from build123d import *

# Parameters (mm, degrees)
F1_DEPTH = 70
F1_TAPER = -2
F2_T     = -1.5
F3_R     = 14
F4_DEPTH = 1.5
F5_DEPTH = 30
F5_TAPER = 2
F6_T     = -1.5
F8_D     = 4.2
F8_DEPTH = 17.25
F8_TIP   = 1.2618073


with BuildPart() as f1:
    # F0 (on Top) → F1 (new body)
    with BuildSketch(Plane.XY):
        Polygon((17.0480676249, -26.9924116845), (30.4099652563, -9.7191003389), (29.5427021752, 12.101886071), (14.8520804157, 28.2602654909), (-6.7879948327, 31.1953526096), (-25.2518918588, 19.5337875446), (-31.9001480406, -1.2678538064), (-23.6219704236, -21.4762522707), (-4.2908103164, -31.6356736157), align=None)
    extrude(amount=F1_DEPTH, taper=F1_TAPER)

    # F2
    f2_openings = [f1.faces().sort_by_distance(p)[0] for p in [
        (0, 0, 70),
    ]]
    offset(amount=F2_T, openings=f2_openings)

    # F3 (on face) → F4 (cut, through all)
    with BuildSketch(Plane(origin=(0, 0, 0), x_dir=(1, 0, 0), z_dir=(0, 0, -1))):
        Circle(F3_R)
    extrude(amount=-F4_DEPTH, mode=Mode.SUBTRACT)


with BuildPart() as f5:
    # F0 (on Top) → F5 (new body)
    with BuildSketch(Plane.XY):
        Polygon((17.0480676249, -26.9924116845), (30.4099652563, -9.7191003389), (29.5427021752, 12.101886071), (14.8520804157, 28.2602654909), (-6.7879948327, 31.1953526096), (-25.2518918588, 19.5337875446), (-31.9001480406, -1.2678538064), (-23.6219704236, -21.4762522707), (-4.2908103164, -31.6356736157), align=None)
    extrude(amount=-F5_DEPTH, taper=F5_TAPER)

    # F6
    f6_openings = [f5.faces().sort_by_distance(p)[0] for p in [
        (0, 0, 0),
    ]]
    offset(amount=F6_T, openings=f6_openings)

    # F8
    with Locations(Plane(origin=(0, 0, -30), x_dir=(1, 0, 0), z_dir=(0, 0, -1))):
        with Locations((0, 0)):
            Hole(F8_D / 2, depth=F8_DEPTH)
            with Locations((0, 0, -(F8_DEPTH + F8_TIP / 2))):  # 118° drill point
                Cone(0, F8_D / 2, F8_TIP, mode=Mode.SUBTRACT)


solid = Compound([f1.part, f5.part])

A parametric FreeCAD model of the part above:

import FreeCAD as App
import Part
import Sketcher
from FreeCAD import Vector


def faces_at(feature, points):
    """Names of the faces that lie closest to the given points."""
    faces = feature.Shape.Faces
    near = lambda p: min(range(len(faces)), key=lambda i: faces[i].distToShape(Part.Vertex(*p))[0])
    return sorted({f"Face{near(p) + 1}" for p in points})

doc = App.newDocument("Part")
params = doc.addObject("Spreadsheet::Sheet", "Params")
for row, (alias, value) in enumerate([
    ("pad1_length", "70 mm"),
    ("pad1_taper", "2 deg"),
    ("thickness_wall", "1.5 mm"),
    ("sketch2_diameter", "28 mm"),
    ("pad2_length", "30 mm"),
    ("pad2_taper", "-2 deg"),
    ("thickness2_wall", "1.5 mm"),
    ("sketch4_diameter", "4.2 mm"),
    ("hole_diameter", "4.2 mm"),
    ("hole_depth", "17.25 mm"),
], start=1):
    params.set(f"A{row}", alias)
    params.set(f"B{row}", "=" + value)
    params.setAlias(f"B{row}", alias)

body = doc.addObject("PartDesign::Body", "Body")

# Sketch on XY plane
sketch1 = body.newObject("Sketcher::SketchObject", "Sketch")
sketch1.AttachmentSupport = (doc.getObject("XY_Plane"), [""])
sketch1.MapMode = "FlatFace"
sketch1.addGeometry([
    Part.LineSegment(Vector(17.048068, -26.992412, 0), Vector(30.409965, -9.7191, 0)),  # 0
    Part.LineSegment(Vector(30.409965, -9.7191, 0), Vector(29.542702, 12.101886, 0)),  # 1
    Part.LineSegment(Vector(29.542702, 12.101886, 0), Vector(14.85208, 28.260265, 0)),  # 2
    Part.LineSegment(Vector(14.85208, 28.260265, 0), Vector(-6.787995, 31.195353, 0)),  # 3
    Part.LineSegment(Vector(-6.787995, 31.195353, 0), Vector(-25.251892, 19.533788, 0)),  # 4
    Part.LineSegment(Vector(-25.251892, 19.533788, 0), Vector(-31.900148, -1.267854, 0)),  # 5
    Part.LineSegment(Vector(-31.900148, -1.267854, 0), Vector(-23.62197, -21.476252, 0)),  # 6
    Part.LineSegment(Vector(-23.62197, -21.476252, 0), Vector(-4.29081, -31.635674, 0)),  # 7
    Part.LineSegment(Vector(-4.29081, -31.635674, 0), Vector(17.048068, -26.992412, 0)),  # 8
], False)
sketch1.addConstraint([
    Sketcher.Constraint("Coincident", 0, 2, 1, 1),
    Sketcher.Constraint("Coincident", 1, 2, 2, 1),
    Sketcher.Constraint("Coincident", 2, 2, 3, 1),
    Sketcher.Constraint("Coincident", 3, 2, 4, 1),
    Sketcher.Constraint("Coincident", 4, 2, 5, 1),
    Sketcher.Constraint("Coincident", 5, 2, 6, 1),
    Sketcher.Constraint("Coincident", 6, 2, 7, 1),
    Sketcher.Constraint("Coincident", 7, 2, 8, 1),
    Sketcher.Constraint("Coincident", 8, 2, 0, 1),
    Sketcher.Constraint("Equal", 0, 1),
    Sketcher.Constraint("Equal", 1, 2),
    Sketcher.Constraint("Equal", 2, 3),
    Sketcher.Constraint("Equal", 3, 4),
    Sketcher.Constraint("Equal", 4, 5),
    Sketcher.Constraint("Equal", 5, 6),
    Sketcher.Constraint("Equal", 6, 7),
    Sketcher.Constraint("Equal", 7, 8),
    Sketcher.Constraint("DistanceY", 0, 2, -1, 1, 9.7191),
    Sketcher.Constraint("DistanceY", 1, 2, 4, 2, 7.431901),
    Sketcher.Constraint("DistanceY", 6, 2, 5, 2, 20.208398),
    Sketcher.Constraint("DistanceX", -1, 1, 2, 2, 14.85208),
    Sketcher.Constraint("DistanceX", 4, 2, -1, 1, 25.251892),
    Sketcher.Constraint("DistanceX", 5, 2, -1, 1, 31.900148),
    Sketcher.Constraint("DistanceX", 6, 2, -1, 1, 23.62197),
    Sketcher.Constraint("DistanceX", 7, 2, -1, 1, 4.29081),
    Sketcher.Constraint("DistanceY", 8, 2, -1, 1, 26.992412),
    Sketcher.Constraint("DistanceX", 2, 2, 1, 2, 14.690622),
])
pad1 = body.newObject("PartDesign::Pad", "Pad")
pad1.Profile = sketch1
pad1.setExpression("Length", "Params.pad1_length")
pad1.setExpression("TaperAngle", "Params.pad1_taper")
doc.recompute()

thickness = body.newObject("PartDesign::Thickness", "Thickness")
thickness.Base = (pad1, faces_at(pad1, [(-0.77, -0.7, 70)]))
thickness.setExpression("Value", "Params.thickness_wall")
thickness.Reversed = True
thickness.Join = "Arc"

# Sketch on XY plane
sketch2 = body.newObject("Sketcher::SketchObject", "Sketch001")
sketch2.AttachmentSupport = (doc.getObject("XY_Plane"), [""])
sketch2.MapMode = "FlatFace"
sketch2.addGeometry(Part.Circle(Vector(0, 0, 0), Vector(0, 0, 1), 14), False)
sketch2.addConstraint([
    Sketcher.Constraint("Coincident", 0, 3, -1, 1),
    Sketcher.Constraint("Diameter", 0, 28.0),
])
sketch2.setExpression("Constraints[1]", "Params.sketch2_diameter")
pocket1 = body.newObject("PartDesign::Pocket", "Pocket")
pocket1.Profile = sketch2
pocket1.Type = "ThroughAll"
pocket1.Reversed = True
body2 = doc.addObject("PartDesign::Body", "Body001")

# Sketch on XY plane
sketch3 = body2.newObject("Sketcher::SketchObject", "Sketch002")
sketch3.AttachmentSupport = (doc.getObject("XY_Plane001"), [""])
sketch3.MapMode = "FlatFace"
sketch3.addGeometry([
    Part.LineSegment(Vector(17.048068, -26.992412, 0), Vector(30.409965, -9.7191, 0)),  # 0
    Part.LineSegment(Vector(30.409965, -9.7191, 0), Vector(29.542702, 12.101886, 0)),  # 1
    Part.LineSegment(Vector(29.542702, 12.101886, 0), Vector(14.85208, 28.260265, 0)),  # 2
    Part.LineSegment(Vector(14.85208, 28.260265, 0), Vector(-6.787995, 31.195353, 0)),  # 3
    Part.LineSegment(Vector(-6.787995, 31.195353, 0), Vector(-25.251892, 19.533788, 0)),  # 4
    Part.LineSegment(Vector(-25.251892, 19.533788, 0), Vector(-31.900148, -1.267854, 0)),  # 5
    Part.LineSegment(Vector(-31.900148, -1.267854, 0), Vector(-23.62197, -21.476252, 0)),  # 6
    Part.LineSegment(Vector(-23.62197, -21.476252, 0), Vector(-4.29081, -31.635674, 0)),  # 7
    Part.LineSegment(Vector(-4.29081, -31.635674, 0), Vector(17.048068, -26.992412, 0)),  # 8
], False)
sketch3.addConstraint([
    Sketcher.Constraint("Coincident", 0, 2, 1, 1),
    Sketcher.Constraint("Coincident", 1, 2, 2, 1),
    Sketcher.Constraint("Coincident", 2, 2, 3, 1),
    Sketcher.Constraint("Coincident", 3, 2, 4, 1),
    Sketcher.Constraint("Coincident", 4, 2, 5, 1),
    Sketcher.Constraint("Coincident", 5, 2, 6, 1),
    Sketcher.Constraint("Coincident", 6, 2, 7, 1),
    Sketcher.Constraint("Coincident", 7, 2, 8, 1),
    Sketcher.Constraint("Coincident", 8, 2, 0, 1),
    Sketcher.Constraint("Equal", 0, 1),
    Sketcher.Constraint("Equal", 1, 2),
    Sketcher.Constraint("Equal", 2, 3),
    Sketcher.Constraint("Equal", 3, 4),
    Sketcher.Constraint("Equal", 4, 5),
    Sketcher.Constraint("Equal", 5, 6),
    Sketcher.Constraint("Equal", 6, 7),
    Sketcher.Constraint("Equal", 7, 8),
    Sketcher.Constraint("DistanceY", 0, 2, -1, 1, 9.7191),
    Sketcher.Constraint("DistanceY", 1, 2, 4, 2, 7.431901),
    Sketcher.Constraint("DistanceY", 6, 2, 5, 2, 20.208398),
    Sketcher.Constraint("DistanceX", -1, 1, 2, 2, 14.85208),
    Sketcher.Constraint("DistanceX", 4, 2, -1, 1, 25.251892),
    Sketcher.Constraint("DistanceX", 5, 2, -1, 1, 31.900148),
    Sketcher.Constraint("DistanceX", 6, 2, -1, 1, 23.62197),
    Sketcher.Constraint("DistanceX", 7, 2, -1, 1, 4.29081),
    Sketcher.Constraint("DistanceY", 8, 2, -1, 1, 26.992412),
    Sketcher.Constraint("DistanceX", 2, 2, 1, 2, 14.690622),
])
pad2 = body2.newObject("PartDesign::Pad", "Pad001")
pad2.Profile = sketch3
pad2.setExpression("Length", "Params.pad2_length")
pad2.Reversed = True
pad2.setExpression("TaperAngle", "Params.pad2_taper")
doc.recompute()

thickness2 = body2.newObject("PartDesign::Thickness", "Thickness001")
thickness2.Base = (pad2, faces_at(pad2, [(-0.712, -0.648, 0)]))
thickness2.setExpression("Value", "Params.thickness2_wall")
thickness2.Reversed = True
thickness2.Join = "Arc"

# Sketch on XY plane
sketch4 = body2.newObject("Sketcher::SketchObject", "Sketch003")
sketch4.AttachmentSupport = (doc.getObject("XY_Plane001"), [""])
sketch4.MapMode = "FlatFace"
sketch4.AttachmentOffset = App.Placement(Vector(0, 0, -30), App.Rotation())
sketch4.addGeometry(Part.Circle(Vector(0, 0, 0), Vector(0, 0, 1), 2.1), False)
sketch4.addConstraint([
    Sketcher.Constraint("Coincident", 0, 3, -1, 1),
    Sketcher.Constraint("Diameter", 0, 4.2),
])
sketch4.setExpression("Constraints[1]", "Params.sketch4_diameter")
doc.recompute()
hole = body2.newObject("PartDesign::Hole", "Hole")
hole.Profile = sketch4
hole.ThreadType = "None"
hole.setExpression("Diameter", "Params.hole_diameter")
hole.DepthType = "Dimension"
hole.setExpression("Depth", "Params.hole_depth")
hole.DrillPoint = "Angled"
hole.DrillPointAngle = 118
hole.Reversed = True

doc.recompute()
